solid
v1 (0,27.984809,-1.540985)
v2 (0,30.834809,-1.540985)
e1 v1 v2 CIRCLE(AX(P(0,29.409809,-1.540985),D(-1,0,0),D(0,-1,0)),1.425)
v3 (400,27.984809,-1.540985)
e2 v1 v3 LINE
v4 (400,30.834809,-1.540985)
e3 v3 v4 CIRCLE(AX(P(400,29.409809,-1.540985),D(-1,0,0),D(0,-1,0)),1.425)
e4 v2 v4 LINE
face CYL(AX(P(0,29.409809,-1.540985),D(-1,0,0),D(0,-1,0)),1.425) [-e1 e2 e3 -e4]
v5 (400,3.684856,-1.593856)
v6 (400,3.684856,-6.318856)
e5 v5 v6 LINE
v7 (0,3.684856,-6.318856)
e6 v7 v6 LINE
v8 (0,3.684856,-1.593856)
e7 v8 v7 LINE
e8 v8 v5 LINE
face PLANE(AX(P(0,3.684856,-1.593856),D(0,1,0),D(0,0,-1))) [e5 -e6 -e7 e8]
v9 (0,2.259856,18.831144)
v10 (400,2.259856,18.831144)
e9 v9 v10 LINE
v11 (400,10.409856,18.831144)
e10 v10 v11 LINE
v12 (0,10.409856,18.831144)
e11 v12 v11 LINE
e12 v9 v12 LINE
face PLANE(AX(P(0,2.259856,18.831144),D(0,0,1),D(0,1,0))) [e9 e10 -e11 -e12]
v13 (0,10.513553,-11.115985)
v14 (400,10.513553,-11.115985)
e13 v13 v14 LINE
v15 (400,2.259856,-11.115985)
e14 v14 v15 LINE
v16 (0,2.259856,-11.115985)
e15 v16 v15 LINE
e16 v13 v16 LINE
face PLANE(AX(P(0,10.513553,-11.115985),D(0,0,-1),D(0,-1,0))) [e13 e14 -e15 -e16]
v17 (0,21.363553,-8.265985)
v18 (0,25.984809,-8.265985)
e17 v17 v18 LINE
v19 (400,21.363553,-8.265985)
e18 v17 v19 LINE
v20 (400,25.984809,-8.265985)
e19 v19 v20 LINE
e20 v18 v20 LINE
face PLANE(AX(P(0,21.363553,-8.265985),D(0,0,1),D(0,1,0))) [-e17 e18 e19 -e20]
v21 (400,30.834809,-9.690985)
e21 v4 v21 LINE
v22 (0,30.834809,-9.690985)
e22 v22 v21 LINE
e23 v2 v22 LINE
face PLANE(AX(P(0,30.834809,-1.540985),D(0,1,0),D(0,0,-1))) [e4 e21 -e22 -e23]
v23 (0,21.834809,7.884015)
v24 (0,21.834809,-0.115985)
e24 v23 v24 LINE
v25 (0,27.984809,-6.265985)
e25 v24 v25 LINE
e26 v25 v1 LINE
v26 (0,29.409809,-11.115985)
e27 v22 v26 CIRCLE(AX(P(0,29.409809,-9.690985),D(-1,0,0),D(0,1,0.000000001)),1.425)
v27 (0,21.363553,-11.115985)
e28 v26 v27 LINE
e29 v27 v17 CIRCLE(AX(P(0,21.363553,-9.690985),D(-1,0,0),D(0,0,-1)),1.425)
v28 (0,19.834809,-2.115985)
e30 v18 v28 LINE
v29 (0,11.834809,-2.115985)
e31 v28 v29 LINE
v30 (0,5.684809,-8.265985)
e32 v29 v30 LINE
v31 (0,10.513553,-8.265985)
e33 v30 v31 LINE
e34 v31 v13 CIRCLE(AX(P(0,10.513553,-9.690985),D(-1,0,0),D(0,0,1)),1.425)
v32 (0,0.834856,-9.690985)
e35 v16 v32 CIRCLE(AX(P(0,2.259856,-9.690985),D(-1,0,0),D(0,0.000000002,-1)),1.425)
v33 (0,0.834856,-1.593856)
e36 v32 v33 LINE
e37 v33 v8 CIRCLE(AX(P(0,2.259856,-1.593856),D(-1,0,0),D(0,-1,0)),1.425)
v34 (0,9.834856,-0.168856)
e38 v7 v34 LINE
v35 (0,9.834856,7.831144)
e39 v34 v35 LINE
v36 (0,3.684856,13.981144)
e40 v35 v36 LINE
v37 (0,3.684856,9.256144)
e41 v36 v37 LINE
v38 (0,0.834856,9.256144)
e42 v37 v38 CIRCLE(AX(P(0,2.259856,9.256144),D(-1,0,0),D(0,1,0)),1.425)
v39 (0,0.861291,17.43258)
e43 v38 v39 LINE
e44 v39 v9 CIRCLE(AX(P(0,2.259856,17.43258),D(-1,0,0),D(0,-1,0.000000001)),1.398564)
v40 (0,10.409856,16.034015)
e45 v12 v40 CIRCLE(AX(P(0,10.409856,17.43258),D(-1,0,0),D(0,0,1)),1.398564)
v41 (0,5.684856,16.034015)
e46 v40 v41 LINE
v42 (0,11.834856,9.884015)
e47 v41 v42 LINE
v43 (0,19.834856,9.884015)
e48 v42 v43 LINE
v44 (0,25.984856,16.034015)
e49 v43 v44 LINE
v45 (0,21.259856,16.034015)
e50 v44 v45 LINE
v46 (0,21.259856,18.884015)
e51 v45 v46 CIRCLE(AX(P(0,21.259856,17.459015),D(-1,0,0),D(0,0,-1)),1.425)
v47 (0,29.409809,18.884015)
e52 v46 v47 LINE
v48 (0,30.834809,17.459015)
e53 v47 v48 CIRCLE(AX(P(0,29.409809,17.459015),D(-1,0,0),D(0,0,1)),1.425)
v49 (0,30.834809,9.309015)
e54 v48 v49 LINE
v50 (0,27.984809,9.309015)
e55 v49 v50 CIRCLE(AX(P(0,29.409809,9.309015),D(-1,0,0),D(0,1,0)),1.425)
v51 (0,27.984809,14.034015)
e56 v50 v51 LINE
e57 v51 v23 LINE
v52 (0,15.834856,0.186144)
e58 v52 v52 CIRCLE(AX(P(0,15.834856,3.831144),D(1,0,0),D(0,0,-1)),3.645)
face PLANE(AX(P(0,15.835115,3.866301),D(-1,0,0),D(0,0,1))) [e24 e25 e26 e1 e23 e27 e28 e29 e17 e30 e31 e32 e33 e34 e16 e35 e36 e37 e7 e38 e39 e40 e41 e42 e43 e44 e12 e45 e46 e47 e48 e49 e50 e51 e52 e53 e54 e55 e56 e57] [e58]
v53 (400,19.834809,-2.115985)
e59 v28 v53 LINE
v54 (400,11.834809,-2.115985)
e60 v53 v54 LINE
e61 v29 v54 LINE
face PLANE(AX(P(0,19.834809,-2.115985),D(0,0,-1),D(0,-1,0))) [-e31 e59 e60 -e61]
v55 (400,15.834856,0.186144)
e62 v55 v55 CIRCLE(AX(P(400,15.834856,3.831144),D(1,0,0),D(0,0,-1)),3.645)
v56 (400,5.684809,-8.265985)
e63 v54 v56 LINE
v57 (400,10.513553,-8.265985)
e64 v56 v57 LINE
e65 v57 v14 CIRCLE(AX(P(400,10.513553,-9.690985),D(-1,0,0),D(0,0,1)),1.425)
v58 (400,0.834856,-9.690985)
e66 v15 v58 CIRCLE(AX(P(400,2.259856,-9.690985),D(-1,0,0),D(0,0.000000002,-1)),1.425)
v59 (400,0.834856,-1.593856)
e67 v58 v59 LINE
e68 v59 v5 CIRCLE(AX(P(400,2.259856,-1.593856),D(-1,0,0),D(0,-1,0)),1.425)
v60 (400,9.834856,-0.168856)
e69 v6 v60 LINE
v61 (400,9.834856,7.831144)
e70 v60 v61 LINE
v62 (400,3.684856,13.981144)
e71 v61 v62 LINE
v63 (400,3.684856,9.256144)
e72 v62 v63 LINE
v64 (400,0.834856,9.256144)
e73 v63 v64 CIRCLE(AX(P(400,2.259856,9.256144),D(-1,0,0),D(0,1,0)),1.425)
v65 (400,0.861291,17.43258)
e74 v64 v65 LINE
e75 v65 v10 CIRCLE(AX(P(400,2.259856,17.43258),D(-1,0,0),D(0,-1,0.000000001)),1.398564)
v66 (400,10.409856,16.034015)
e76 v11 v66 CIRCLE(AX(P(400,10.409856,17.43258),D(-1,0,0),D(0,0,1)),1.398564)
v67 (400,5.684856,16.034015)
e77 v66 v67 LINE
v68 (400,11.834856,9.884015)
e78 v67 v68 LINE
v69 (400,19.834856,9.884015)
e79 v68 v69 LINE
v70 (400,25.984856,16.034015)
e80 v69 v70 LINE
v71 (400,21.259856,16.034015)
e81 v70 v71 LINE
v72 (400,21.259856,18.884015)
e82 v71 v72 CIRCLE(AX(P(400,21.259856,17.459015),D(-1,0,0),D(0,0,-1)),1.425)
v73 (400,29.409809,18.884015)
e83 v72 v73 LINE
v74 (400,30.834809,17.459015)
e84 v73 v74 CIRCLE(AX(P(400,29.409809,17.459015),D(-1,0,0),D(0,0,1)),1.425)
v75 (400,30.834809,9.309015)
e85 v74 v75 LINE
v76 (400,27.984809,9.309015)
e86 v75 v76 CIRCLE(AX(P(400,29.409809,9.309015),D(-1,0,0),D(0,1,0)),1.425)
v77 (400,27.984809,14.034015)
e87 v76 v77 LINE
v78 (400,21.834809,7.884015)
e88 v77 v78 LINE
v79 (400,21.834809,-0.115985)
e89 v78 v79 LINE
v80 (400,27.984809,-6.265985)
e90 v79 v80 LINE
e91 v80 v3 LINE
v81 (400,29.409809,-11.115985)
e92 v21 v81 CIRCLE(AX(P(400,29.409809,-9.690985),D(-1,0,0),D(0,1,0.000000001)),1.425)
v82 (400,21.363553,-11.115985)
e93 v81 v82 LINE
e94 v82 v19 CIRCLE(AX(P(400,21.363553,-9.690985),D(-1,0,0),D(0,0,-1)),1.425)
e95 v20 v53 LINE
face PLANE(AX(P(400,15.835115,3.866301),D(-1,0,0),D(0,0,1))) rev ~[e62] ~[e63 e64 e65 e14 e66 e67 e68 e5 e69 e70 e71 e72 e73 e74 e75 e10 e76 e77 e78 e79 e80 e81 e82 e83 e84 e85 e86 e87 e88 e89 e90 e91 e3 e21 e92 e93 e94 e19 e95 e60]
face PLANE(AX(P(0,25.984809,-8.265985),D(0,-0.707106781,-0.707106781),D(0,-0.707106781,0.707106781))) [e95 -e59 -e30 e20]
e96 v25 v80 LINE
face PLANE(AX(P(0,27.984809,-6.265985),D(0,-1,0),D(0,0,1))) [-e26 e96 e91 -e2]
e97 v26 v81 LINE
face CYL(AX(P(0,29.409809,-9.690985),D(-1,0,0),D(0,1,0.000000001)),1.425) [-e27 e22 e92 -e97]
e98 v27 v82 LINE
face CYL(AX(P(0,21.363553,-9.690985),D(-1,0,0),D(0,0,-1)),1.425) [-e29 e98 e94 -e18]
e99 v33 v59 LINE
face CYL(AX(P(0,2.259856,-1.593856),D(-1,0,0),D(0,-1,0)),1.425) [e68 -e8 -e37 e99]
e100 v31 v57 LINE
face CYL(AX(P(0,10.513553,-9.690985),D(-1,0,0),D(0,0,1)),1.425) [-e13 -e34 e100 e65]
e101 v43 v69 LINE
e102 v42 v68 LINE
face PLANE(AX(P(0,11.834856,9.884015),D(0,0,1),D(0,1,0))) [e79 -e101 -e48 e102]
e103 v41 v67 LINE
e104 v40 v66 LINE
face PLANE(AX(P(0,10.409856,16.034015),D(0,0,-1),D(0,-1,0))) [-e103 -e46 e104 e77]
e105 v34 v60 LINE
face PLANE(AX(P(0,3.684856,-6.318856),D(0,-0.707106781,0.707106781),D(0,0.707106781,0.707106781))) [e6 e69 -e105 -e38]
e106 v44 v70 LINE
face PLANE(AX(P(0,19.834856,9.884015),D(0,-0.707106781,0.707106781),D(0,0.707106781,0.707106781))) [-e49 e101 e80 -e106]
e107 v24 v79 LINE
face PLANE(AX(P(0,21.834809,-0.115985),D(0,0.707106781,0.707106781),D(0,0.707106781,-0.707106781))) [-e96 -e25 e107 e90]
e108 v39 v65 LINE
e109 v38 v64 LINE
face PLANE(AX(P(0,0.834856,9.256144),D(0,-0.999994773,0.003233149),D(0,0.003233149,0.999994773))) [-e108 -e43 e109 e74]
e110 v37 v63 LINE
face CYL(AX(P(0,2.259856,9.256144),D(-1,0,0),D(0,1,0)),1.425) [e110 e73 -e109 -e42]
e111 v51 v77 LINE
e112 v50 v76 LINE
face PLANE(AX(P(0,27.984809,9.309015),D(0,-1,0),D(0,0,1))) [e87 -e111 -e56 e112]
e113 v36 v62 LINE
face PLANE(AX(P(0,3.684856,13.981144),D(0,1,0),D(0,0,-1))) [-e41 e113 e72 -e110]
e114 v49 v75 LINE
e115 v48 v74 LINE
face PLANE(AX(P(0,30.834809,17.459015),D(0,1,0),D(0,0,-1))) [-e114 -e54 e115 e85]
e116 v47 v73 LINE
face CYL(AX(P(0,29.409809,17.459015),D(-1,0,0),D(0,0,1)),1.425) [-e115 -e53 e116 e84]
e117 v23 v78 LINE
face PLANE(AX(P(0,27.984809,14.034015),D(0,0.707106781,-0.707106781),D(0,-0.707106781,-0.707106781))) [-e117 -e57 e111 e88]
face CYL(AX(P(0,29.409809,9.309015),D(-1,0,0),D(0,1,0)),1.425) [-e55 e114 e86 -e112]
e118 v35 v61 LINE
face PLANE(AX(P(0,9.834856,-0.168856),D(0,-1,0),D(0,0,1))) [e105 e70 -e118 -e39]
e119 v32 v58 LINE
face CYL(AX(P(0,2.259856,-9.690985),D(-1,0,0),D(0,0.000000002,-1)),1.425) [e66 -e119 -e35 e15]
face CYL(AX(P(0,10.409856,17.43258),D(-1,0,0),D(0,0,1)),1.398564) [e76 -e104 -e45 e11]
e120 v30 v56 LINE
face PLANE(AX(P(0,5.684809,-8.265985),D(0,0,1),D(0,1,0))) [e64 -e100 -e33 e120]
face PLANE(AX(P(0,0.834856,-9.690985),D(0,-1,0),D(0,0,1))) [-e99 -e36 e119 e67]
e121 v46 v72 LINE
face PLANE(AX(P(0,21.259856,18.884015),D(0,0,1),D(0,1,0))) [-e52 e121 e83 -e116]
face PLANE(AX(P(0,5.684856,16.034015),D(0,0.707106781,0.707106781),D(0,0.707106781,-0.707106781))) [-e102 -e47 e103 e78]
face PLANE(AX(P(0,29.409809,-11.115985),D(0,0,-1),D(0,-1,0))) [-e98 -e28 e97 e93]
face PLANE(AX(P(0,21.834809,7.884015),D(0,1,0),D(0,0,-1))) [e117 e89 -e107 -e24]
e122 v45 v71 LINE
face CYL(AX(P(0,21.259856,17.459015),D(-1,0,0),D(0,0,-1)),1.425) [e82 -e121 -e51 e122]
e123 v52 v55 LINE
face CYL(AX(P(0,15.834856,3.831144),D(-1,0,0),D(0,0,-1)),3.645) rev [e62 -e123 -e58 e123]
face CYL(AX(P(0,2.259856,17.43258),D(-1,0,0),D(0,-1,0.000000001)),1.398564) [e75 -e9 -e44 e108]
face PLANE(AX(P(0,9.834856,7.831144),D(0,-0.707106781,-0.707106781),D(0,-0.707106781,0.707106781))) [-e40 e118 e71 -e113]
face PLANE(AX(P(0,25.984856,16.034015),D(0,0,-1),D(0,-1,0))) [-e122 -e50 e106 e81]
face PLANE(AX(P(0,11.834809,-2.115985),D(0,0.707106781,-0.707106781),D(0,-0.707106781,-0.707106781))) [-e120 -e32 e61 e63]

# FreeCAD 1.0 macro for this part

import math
import FreeCAD as App
import Part
import Sketcher
from FreeCAD import Vector
Q = App.Units.Quantity

doc = App.newDocument("Part")
body = doc.addObject("PartDesign::Body", "Body")

# Sketch on YZ plane
sketch1 = body.newObject("Sketcher::SketchObject", "Sketch")
sketch1.AttachmentSupport = (doc.getObject("YZ_Plane"), [""])
sketch1.MapMode = "FlatFace"
sketch1.addGeometry(Part.LineSegment(Vector(3.7, -6.3, 0), Vector(3.7, -1.6, 0)), False)
sketch1.addGeometry(Part.ArcOfCircle(Part.Circle(Vector(2.3, -1.6, 0), Vector(0, 0, 1), 1.4), math.radians(0), math.radians(180)), False)
sketch1.addGeometry(Part.LineSegment(Vector(0.8, -1.6, 0), Vector(0.8, -9.7, 0)), False)
sketch1.addGeometry(Part.ArcOfCircle(Part.Circle(Vector(2.3, -9.7, 0), Vector(0, 0, 1), 1.4), math.radians(180), math.radians(270)), False)
sketch1.addGeometry(Part.LineSegment(Vector(2.3, -11.1, 0), Vector(10.5, -11.1, 0)), False)
sketch1.addGeometry(Part.ArcOfCircle(Part.Circle(Vector(10.5, -9.7, 0), Vector(0, 0, 1), 1.4), math.radians(-90), math.radians(90)), False)
sketch1.addGeometry(Part.LineSegment(Vector(10.5, -8.3, 0), Vector(5.7, -8.3, 0)), False)
sketch1.addGeometry(Part.LineSegment(Vector(5.7, -8.3, 0), Vector(11.8, -2.1, 0)), False)
sketch1.addGeometry(Part.LineSegment(Vector(11.8, -2.1, 0), Vector(19.8, -2.1, 0)), False)
sketch1.addGeometry(Part.LineSegment(Vector(19.8, -2.1, 0), Vector(26, -8.3, 0)), False)
sketch1.addGeometry(Part.LineSegment(Vector(26, -8.3, 0), Vector(21.4, -8.3, 0)), False)
sketch1.addGeometry(Part.ArcOfCircle(Part.Circle(Vector(21.4, -9.7, 0), Vector(0, 0, 1), 1.4), math.radians(90), math.radians(270)), False)
sketch1.addGeometry(Part.LineSegment(Vector(21.4, -11.1, 0), Vector(29.4, -11.1, 0)), False)
sketch1.addGeometry(Part.ArcOfCircle(Part.Circle(Vector(29.4, -9.7, 0), Vector(0, 0, 1), 1.4), math.radians(-90), math.radians(0)), False)
sketch1.addGeometry(Part.LineSegment(Vector(30.8, -9.7, 0), Vector(30.8, -1.5, 0)), False)
sketch1.addGeometry(Part.ArcOfCircle(Part.Circle(Vector(29.4, -1.5, 0), Vector(0, 0, 1), 1.4), math.radians(0), math.radians(180)), False)
sketch1.addGeometry(Part.LineSegment(Vector(28, -1.5, 0), Vector(28, -6.3, 0)), False)
sketch1.addGeometry(Part.LineSegment(Vector(28, -6.3, 0), Vector(21.8, -0.1, 0)), False)
sketch1.addGeometry(Part.LineSegment(Vector(21.8, -0.1, 0), Vector(21.8, 7.9, 0)), False)
sketch1.addGeometry(Part.LineSegment(Vector(21.8, 7.9, 0), Vector(28, 14, 0)), False)
sketch1.addGeometry(Part.LineSegment(Vector(28, 14, 0), Vector(28, 9.3, 0)), False)
sketch1.addGeometry(Part.ArcOfCircle(Part.Circle(Vector(29.4, 9.3, 0), Vector(0, 0, 1), 1.4), math.radians(180), math.radians(360)), False)
sketch1.addGeometry(Part.LineSegment(Vector(30.8, 9.3, 0), Vector(30.8, 17.5, 0)), False)
sketch1.addGeometry(Part.ArcOfCircle(Part.Circle(Vector(29.4, 17.5, 0), Vector(0, 0, 1), 1.4), math.radians(0), math.radians(90)), False)
sketch1.addGeometry(Part.LineSegment(Vector(29.4, 18.9, 0), Vector(21.3, 18.9, 0)), False)
sketch1.addGeometry(Part.ArcOfCircle(Part.Circle(Vector(21.3, 17.5, 0), Vector(0, 0, 1), 1.4), math.radians(90), math.radians(270)), False)
sketch1.addGeometry(Part.LineSegment(Vector(21.3, 16, 0), Vector(26, 16, 0)), False)
sketch1.addGeometry(Part.LineSegment(Vector(26, 16, 0), Vector(19.8, 9.9, 0)), False)
sketch1.addGeometry(Part.LineSegment(Vector(19.8, 9.9, 0), Vector(11.8, 9.9, 0)), False)
sketch1.addGeometry(Part.LineSegment(Vector(11.8, 9.9, 0), Vector(5.7, 16, 0)), False)
sketch1.addGeometry(Part.LineSegment(Vector(5.7, 16, 0), Vector(10.4, 16, 0)), False)
sketch1.addGeometry(Part.ArcOfCircle(Part.Circle(Vector(10.4, 17.4, 0), Vector(0, 0, 1), 1.4), math.radians(-90), math.radians(90)), False)
sketch1.addGeometry(Part.LineSegment(Vector(10.4, 18.8, 0), Vector(2.3, 18.8, 0)), False)
sketch1.addGeometry(Part.ArcOfCircle(Part.Circle(Vector(2.3, 17.4, 0), Vector(0, 0, 1), 1.4), math.radians(90), math.radians(180)), False)
sketch1.addGeometry(Part.LineSegment(Vector(0.9, 17.4, 0), Vector(0.8, 9.3, 0)), False)
sketch1.addGeometry(Part.ArcOfCircle(Part.Circle(Vector(2.3, 9.3, 0), Vector(0, 0, 1), 1.4), math.radians(180), math.radians(360)), False)
sketch1.addGeometry(Part.LineSegment(Vector(3.7, 9.3, 0), Vector(3.7, 14, 0)), False)
sketch1.addGeometry(Part.LineSegment(Vector(3.7, 14, 0), Vector(9.8, 7.8, 0)), False)
sketch1.addGeometry(Part.LineSegment(Vector(9.8, 7.8, 0), Vector(9.8, -0.2, 0)), False)
sketch1.addGeometry(Part.LineSegment(Vector(9.8, -0.2, 0), Vector(3.7, -6.3, 0)), False)
sketch1.addGeometry(Part.Circle(Vector(15.8, 3.8, 0), Vector(0, 0, 1), 3.6), False)
sketch1.addConstraint(Sketcher.Constraint("Tangent", 0, 2, 1, 1))
sketch1.addConstraint(Sketcher.Constraint("Tangent", 1, 2, 2, 1))
sketch1.addConstraint(Sketcher.Constraint("Tangent", 2, 2, 3, 1))
sketch1.addConstraint(Sketcher.Constraint("Tangent", 3, 2, 4, 1))
sketch1.addConstraint(Sketcher.Constraint("Tangent", 4, 2, 5, 1))
sketch1.addConstraint(Sketcher.Constraint("Tangent", 5, 2, 6, 1))
sketch1.addConstraint(Sketcher.Constraint("Coincident", 6, 2, 7, 1))
sketch1.addConstraint(Sketcher.Constraint("Coincident", 7, 2, 8, 1))
sketch1.addConstraint(Sketcher.Constraint("Coincident", 8, 2, 9, 1))
sketch1.addConstraint(Sketcher.Constraint("Coincident", 9, 2, 10, 1))
sketch1.addConstraint(Sketcher.Constraint("Tangent", 10, 2, 11, 1))
sketch1.addConstraint(Sketcher.Constraint("Tangent", 11, 2, 12, 1))
sketch1.addConstraint(Sketcher.Constraint("Tangent", 12, 2, 13, 1))
sketch1.addConstraint(Sketcher.Constraint("Tangent", 13, 2, 14, 1))
sketch1.addConstraint(Sketcher.Constraint("Tangent", 14, 2, 15, 1))
sketch1.addConstraint(Sketcher.Constraint("Tangent", 15, 2, 16, 1))
sketch1.addConstraint(Sketcher.Constraint("Coincident", 16, 2, 17, 1))
sketch1.addConstraint(Sketcher.Constraint("Coincident", 17, 2, 18, 1))
sketch1.addConstraint(Sketcher.Constraint("Coincident", 18, 2, 19, 1))
sketch1.addConstraint(Sketcher.Constraint("Coincident", 19, 2, 20, 1))
sketch1.addConstraint(Sketcher.Constraint("Tangent", 20, 2, 21, 1))
sketch1.addConstraint(Sketcher.Constraint("Tangent", 21, 2, 22, 1))
sketch1.addConstraint(Sketcher.Constraint("Tangent", 22, 2, 23, 1))
sketch1.addConstraint(Sketcher.Constraint("Tangent", 23, 2, 24, 1))
sketch1.addConstraint(Sketcher.Constraint("Tangent", 24, 2, 25, 1))
sketch1.addConstraint(Sketcher.Constraint("Tangent", 25, 2, 26, 1))
sketch1.addConstraint(Sketcher.Constraint("Coincident", 26, 2, 27, 1))
sketch1.addConstraint(Sketcher.Constraint("Coincident", 27, 2, 28, 1))
sketch1.addConstraint(Sketcher.Constraint("Coincident", 28, 2, 29, 1))
sketch1.addConstraint(Sketcher.Constraint("Coincident", 29, 2, 30, 1))
sketch1.addConstraint(Sketcher.Constraint("Tangent", 30, 2, 31, 1))
sketch1.addConstraint(Sketcher.Constraint("Tangent", 31, 2, 32, 1))
sketch1.addConstraint(Sketcher.Constraint("Tangent", 32, 2, 33, 1))
sketch1.addConstraint(Sketcher.Constraint("Coincident", 33, 2, 34, 1))
sketch1.addConstraint(Sketcher.Constraint("Coincident", 34, 2, 35, 1))
sketch1.addConstraint(Sketcher.Constraint("Tangent", 35, 2, 36, 1))
sketch1.addConstraint(Sketcher.Constraint("Coincident", 36, 2, 37, 1))
sketch1.addConstraint(Sketcher.Constraint("Coincident", 37, 2, 38, 1))
sketch1.addConstraint(Sketcher.Constraint("Coincident", 38, 2, 39, 1))
sketch1.addConstraint(Sketcher.Constraint("Coincident", 39, 2, 0, 1))
sketch1.addConstraint(Sketcher.Constraint("Vertical", 0))
sketch1.addConstraint(Sketcher.Constraint("Vertical", 2))
sketch1.addConstraint(Sketcher.Constraint("Horizontal", 4))
sketch1.addConstraint(Sketcher.Constraint("Horizontal", 6))
sketch1.addConstraint(Sketcher.Constraint("Horizontal", 8))
sketch1.addConstraint(Sketcher.Constraint("Horizontal", 10))
sketch1.addConstraint(Sketcher.Constraint("Horizontal", 12))
sketch1.addConstraint(Sketcher.Constraint("Vertical", 14))
sketch1.addConstraint(Sketcher.Constraint("Vertical", 16))
sketch1.addConstraint(Sketcher.Constraint("Vertical", 18))
sketch1.addConstraint(Sketcher.Constraint("Vertical", 20))
sketch1.addConstraint(Sketcher.Constraint("Vertical", 22))
sketch1.addConstraint(Sketcher.Constraint("Horizontal", 24))
sketch1.addConstraint(Sketcher.Constraint("Horizontal", 26))
sketch1.addConstraint(Sketcher.Constraint("Horizontal", 28))
sketch1.addConstraint(Sketcher.Constraint("Horizontal", 30))
sketch1.addConstraint(Sketcher.Constraint("Horizontal", 32))
sketch1.addConstraint(Sketcher.Constraint("Vertical", 36))
sketch1.addConstraint(Sketcher.Constraint("Vertical", 38))
sketch1.addConstraint(Sketcher.Constraint("Equal", 1, 3))
sketch1.addConstraint(Sketcher.Constraint("Equal", 3, 5))
sketch1.addConstraint(Sketcher.Constraint("Equal", 5, 11))
sketch1.addConstraint(Sketcher.Constraint("Equal", 11, 13))
sketch1.addConstraint(Sketcher.Constraint("Equal", 13, 15))
sketch1.addConstraint(Sketcher.Constraint("Equal", 15, 21))
sketch1.addConstraint(Sketcher.Constraint("Equal", 21, 23))
sketch1.addConstraint(Sketcher.Constraint("Equal", 23, 25))
sketch1.addConstraint(Sketcher.Constraint("Equal", 31, 33))
sketch1.addConstraint(Sketcher.Constraint("Equal", 25, 35))
sketch1.addConstraint(Sketcher.Constraint("Perpendicular", 7, 9))
sketch1.addConstraint(Sketcher.Constraint("Parallel", 9, 17))
sketch1.addConstraint(Sketcher.Constraint("Perpendicular", 17, 19))
sketch1.addConstraint(Sketcher.Constraint("Parallel", 19, 27))
sketch1.addConstraint(Sketcher.Constraint("Perpendicular", 27, 29))
sketch1.addConstraint(Sketcher.Constraint("Parallel", 29, 37))
sketch1.addConstraint(Sketcher.Constraint("Perpendicular", 37, 39))
sketch1.addConstraint(Sketcher.Constraint("Horizontal", 5, 3, 11, 3))
sketch1.addConstraint(Sketcher.Constraint("Horizontal", 26, 2, 29, 2))
sketch1.addConstraint(Sketcher.Constraint("Horizontal", 31, 3, 33, 2))
sketch1.addConstraint(Sketcher.Constraint("Horizontal", 35, 3, 34, 2))
sketch1.addConstraint(Sketcher.Constraint("Vertical", 15, 3, 21, 3))
sketch1.addConstraint(Sketcher.Constraint("Vertical", 3, 3, 33, 3))
sketch1.addConstraint(Sketcher.Constraint("Vertical", 33, 3, 35, 3))
sketch1.addConstraint(Sketcher.Constraint("Equal", 8, 28))
sketch1.addConstraint(Sketcher.Constraint("Equal", 26, 30))
sketch1.addConstraint(Sketcher.Constraint("Equal", 30, 0))
sketch1.addConstraint(Sketcher.Constraint("Equal", 32, 14))
sketch1.addConstraint(Sketcher.Constraint("Equal", 0, 16))
sketch1.addConstraint(Sketcher.Constraint("Equal", 28, 18))
sketch1.addConstraint(Sketcher.Constraint("Equal", 16, 20))
sketch1.addConstraint(Sketcher.Constraint("Equal", 14, 22))
sketch1.addConstraint(Sketcher.Constraint("Equal", 20, 36))
sketch1.addConstraint(Sketcher.Constraint("Equal", 18, 38))
sketch1.addConstraint(Sketcher.Constraint("Equal", 7, 9))
sketch1.addConstraint(Sketcher.Constraint("Equal", 9, 17))
sketch1.addConstraint(Sketcher.Constraint("Equal", 19, 27))
sketch1.addConstraint(Sketcher.Constraint("Equal", 29, 37))
sketch1.addConstraint(Sketcher.Constraint("Diameter", 40, Q("7.29 mm")))
sketch1.addConstraint(Sketcher.Constraint("DistanceX", 8, 1, 8, 2, Q("8 mm")))
sketch1.addConstraint(Sketcher.Constraint("Radius", 1, Q("1.425 mm")))
sketch1.addConstraint(Sketcher.Constraint("DistanceY", 13, 3, 21, 3, Q("19 mm")))
sketch1.addConstraint(Sketcher.Constraint("DistanceY", 11, 2, 8, 2, Q("9 mm")))
sketch1.addConstraint(Sketcher.Constraint("DistanceX", 9, 2, 15, 2, Q("2 mm")))
sketch1.addConstraint(Sketcher.Constraint("DistanceY", 9, 2, 16, 2, Q("2 mm")))
sketch1.addConstraint(Sketcher.Constraint("DistanceX", 40, 3, 27, 2, Q("4 mm")))
sketch1.addConstraint(Sketcher.Constraint("DistanceY", 40, 3, 37, 2, Q("4 mm")))
sketch1.addConstraint(Sketcher.Constraint("DistanceX", 5, 3, 11, 3, Q("10.85 mm")))
sketch1.addConstraint(Sketcher.Constraint("Radius", 31, Q("1.398564 mm")))
sketch1.addConstraint(Sketcher.Constraint("DistanceY", 34, 2, 32, 2, Q("9.575 mm")))
sketch1.addConstraint(Sketcher.Constraint("DistanceX", 4, 1, 4, 2, Q("8.253697 mm")))
sketch1.addConstraint(Sketcher.Constraint("DistanceX", 6, 2, 6, 1, Q("4.828744 mm")))
sketch1.addConstraint(Sketcher.Constraint("DistanceX", -1, 1, 13, 3, Q("29.409809 mm")))
sketch1.addConstraint(Sketcher.Constraint("DistanceY", -1, 1, 31, 3, Q("17.43258 mm")))
pad1 = body.newObject("PartDesign::Pad", "Pad")
pad1.Profile = sketch1
pad1.Length = 400

doc.recompute()
